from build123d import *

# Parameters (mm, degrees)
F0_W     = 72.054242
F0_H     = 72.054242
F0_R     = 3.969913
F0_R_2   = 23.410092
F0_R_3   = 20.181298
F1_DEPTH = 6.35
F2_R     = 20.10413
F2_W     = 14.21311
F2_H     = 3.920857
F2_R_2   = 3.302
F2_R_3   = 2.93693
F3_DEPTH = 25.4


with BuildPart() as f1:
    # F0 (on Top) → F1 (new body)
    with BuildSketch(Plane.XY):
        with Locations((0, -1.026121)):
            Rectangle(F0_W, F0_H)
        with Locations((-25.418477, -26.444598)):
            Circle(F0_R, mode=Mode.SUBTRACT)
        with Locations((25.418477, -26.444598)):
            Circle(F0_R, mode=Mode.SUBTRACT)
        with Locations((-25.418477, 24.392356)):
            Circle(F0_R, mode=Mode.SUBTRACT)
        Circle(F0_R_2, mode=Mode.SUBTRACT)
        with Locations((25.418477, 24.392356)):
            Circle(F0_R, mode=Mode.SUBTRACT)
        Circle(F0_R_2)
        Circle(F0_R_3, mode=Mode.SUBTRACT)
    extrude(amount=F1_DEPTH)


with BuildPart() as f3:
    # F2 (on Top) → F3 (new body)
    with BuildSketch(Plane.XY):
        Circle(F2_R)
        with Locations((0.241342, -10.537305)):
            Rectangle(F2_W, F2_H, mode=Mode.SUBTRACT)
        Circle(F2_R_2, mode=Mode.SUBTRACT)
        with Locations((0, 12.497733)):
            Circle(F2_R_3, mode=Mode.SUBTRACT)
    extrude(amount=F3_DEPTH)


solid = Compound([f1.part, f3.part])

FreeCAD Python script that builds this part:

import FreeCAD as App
import Part
import Sketcher
Q = App.Units.Quantity

doc = App.newDocument("Part")
body = doc.addObject("PartDesign::Body", "Body")

sketch1 = body.newObject("Sketcher::SketchObject", "Sketch")
sketch1.AttachmentSupport = (doc.getObject("XY_Plane"), [""])
sketch1.MapMode = "FlatFace"
sketch1.addGeometry([
    Part.LineSegment(App.Vector(-36, 35, 0), App.Vector(-36, -37.1, 0)),
    Part.LineSegment(App.Vector(-36, -37.1, 0), App.Vector(36, -37.1, 0)),
    Part.LineSegment(App.Vector(36, -37.1, 0), App.Vector(36, 35, 0)),
    Part.LineSegment(App.Vector(36, 35, 0), App.Vector(-36, 35, 0)),
    Part.Circle(App.Vector(-25.4, -26.4, 0), App.Vector(0, 0, 1), 4),
    Part.Circle(App.Vector(25.4, -26.4, 0), App.Vector(0, 0, 1), 4),
    Part.Circle(App.Vector(-25.4, 24.4, 0), App.Vector(0, 0, 1), 4),
    Part.Circle(App.Vector(0, 0, 0), App.Vector(0, 0, 1), 20.2),
    Part.Circle(App.Vector(25.4, 24.4, 0), App.Vector(0, 0, 1), 4),
], False)
sketch1.addConstraint([
    Sketcher.Constraint("Coincident", 0, 2, 1, 1),
    Sketcher.Constraint("Coincident", 1, 2, 2, 1),
    Sketcher.Constraint("Coincident", 2, 2, 3, 1),
    Sketcher.Constraint("Coincident", 3, 2, 0, 1),
    Sketcher.Constraint("Vertical", 0),
    Sketcher.Constraint("Horizontal", 1),
    Sketcher.Constraint("Vertical", 2),
    Sketcher.Constraint("Horizontal", 3),
    Sketcher.Constraint("Coincident", 7, 3, -1, 1),
    Sketcher.Constraint("Equal", 4, 5),
    Sketcher.Constraint("Equal", 5, 6),
    Sketcher.Constraint("Equal", 6, 8),
    Sketcher.Constraint("Symmetric", 4, 3, 5, 3, -2),
    Sketcher.Constraint("Symmetric", 6, 3, 8, 3, -2),
    Sketcher.Constraint("Vertical", 4, 3, 6, 3),
    Sketcher.Constraint("Equal", 3, 0),
    Sketcher.Constraint("Diameter", 4, Q("7.939826 mm")),
    Sketcher.Constraint("Diameter", 7, Q("40.362596 mm")),
    Sketcher.Constraint("DistanceY", 0, 2, 0, 1, Q("72.054242 mm")),
    Sketcher.Constraint("DistanceY", -1, 1, 2, 2, Q("35.001 mm")),
    Sketcher.Constraint("DistanceX", 0, 2, 5, 3, Q("61.445598 mm")),
    Sketcher.Constraint("DistanceX", 4, 3, 1, 2, Q("61.445598 mm")),
    Sketcher.Constraint("DistanceY", 4, 3, -1, 1, Q("26.444598 mm")),
    Sketcher.Constraint("DistanceY", -1, 1, 6, 3, Q("24.392356 mm")),
])
pad1 = body.newObject("PartDesign::Pad", "Pad")
pad1.Profile = sketch1
pad1.Length = Q("0.25 in")
body2 = doc.addObject("PartDesign::Body", "Body001")

sketch2 = body2.newObject("Sketcher::SketchObject", "Sketch001")
sketch2.AttachmentSupport = (doc.getObject("XY_Plane001"), [""])
sketch2.MapMode = "FlatFace"
sketch2.addGeometry([
    Part.Circle(App.Vector(0, 0, 0), App.Vector(0, 0, 1), 20.1),
    Part.Circle(App.Vector(0, 0, 0), App.Vector(0, 0, 1), 3.3),
    Part.LineSegment(App.Vector(7.3, -12.5, 0), App.Vector(-6.9, -12.5, 0)),
    Part.LineSegment(App.Vector(-6.9, -12.5, 0), App.Vector(-6.9, -8.6, 0)),
    Part.LineSegment(App.Vector(-6.9, -8.6, 0), App.Vector(7.3, -8.6, 0)),
    Part.LineSegment(App.Vector(7.3, -8.6, 0), App.Vector(7.3, -12.5, 0)),
    Part.Circle(App.Vector(0, 12.5, 0), App.Vector(0, 0, 1), 2.9),
], False)
sketch2.addConstraint([
    Sketcher.Constraint("Coincident", 2, 2, 3, 1),
    Sketcher.Constraint("Coincident", 3, 2, 4, 1),
    Sketcher.Constraint("Coincident", 4, 2, 5, 1),
    Sketcher.Constraint("Coincident", 5, 2, 2, 1),
    Sketcher.Constraint("Horizontal", 2),
    Sketcher.Constraint("Vertical", 3),
    Sketcher.Constraint("Horizontal", 4),
    Sketcher.Constraint("Vertical", 5),
    Sketcher.Constraint("Coincident", 0, 3, -1, 1),
    Sketcher.Constraint("Coincident", 1, 3, -1, 1),
    Sketcher.Constraint("PointOnObject", 6, 3, -2),
    Sketcher.Constraint("Diameter", 1, Q("0.26 in")),
    Sketcher.Constraint("Diameter", 0, Q("40.20826 mm")),
    Sketcher.Constraint("Diameter", 6, Q("5.87386 mm")),
    Sketcher.Constraint("DistanceX", 2, 2, 2, 1, Q("14.21311 mm")),
    Sketcher.Constraint("DistanceY", 3, 1, 3, 2, Q("3.920857 mm")),
    Sketcher.Constraint("DistanceY", 3, 2, 6, 3, Q("21.07461 mm")),
    Sketcher.Constraint("DistanceY", -1, 1, 6, 3, Q("12.497733 mm")),
    Sketcher.Constraint("DistanceX", 2, 2, -1, 1, Q("6.865213 mm")),
])
pad2 = body2.newObject("PartDesign::Pad", "Pad001")
pad2.Profile = sketch2
pad2.Length = Q("1 in")

doc.recompute()
